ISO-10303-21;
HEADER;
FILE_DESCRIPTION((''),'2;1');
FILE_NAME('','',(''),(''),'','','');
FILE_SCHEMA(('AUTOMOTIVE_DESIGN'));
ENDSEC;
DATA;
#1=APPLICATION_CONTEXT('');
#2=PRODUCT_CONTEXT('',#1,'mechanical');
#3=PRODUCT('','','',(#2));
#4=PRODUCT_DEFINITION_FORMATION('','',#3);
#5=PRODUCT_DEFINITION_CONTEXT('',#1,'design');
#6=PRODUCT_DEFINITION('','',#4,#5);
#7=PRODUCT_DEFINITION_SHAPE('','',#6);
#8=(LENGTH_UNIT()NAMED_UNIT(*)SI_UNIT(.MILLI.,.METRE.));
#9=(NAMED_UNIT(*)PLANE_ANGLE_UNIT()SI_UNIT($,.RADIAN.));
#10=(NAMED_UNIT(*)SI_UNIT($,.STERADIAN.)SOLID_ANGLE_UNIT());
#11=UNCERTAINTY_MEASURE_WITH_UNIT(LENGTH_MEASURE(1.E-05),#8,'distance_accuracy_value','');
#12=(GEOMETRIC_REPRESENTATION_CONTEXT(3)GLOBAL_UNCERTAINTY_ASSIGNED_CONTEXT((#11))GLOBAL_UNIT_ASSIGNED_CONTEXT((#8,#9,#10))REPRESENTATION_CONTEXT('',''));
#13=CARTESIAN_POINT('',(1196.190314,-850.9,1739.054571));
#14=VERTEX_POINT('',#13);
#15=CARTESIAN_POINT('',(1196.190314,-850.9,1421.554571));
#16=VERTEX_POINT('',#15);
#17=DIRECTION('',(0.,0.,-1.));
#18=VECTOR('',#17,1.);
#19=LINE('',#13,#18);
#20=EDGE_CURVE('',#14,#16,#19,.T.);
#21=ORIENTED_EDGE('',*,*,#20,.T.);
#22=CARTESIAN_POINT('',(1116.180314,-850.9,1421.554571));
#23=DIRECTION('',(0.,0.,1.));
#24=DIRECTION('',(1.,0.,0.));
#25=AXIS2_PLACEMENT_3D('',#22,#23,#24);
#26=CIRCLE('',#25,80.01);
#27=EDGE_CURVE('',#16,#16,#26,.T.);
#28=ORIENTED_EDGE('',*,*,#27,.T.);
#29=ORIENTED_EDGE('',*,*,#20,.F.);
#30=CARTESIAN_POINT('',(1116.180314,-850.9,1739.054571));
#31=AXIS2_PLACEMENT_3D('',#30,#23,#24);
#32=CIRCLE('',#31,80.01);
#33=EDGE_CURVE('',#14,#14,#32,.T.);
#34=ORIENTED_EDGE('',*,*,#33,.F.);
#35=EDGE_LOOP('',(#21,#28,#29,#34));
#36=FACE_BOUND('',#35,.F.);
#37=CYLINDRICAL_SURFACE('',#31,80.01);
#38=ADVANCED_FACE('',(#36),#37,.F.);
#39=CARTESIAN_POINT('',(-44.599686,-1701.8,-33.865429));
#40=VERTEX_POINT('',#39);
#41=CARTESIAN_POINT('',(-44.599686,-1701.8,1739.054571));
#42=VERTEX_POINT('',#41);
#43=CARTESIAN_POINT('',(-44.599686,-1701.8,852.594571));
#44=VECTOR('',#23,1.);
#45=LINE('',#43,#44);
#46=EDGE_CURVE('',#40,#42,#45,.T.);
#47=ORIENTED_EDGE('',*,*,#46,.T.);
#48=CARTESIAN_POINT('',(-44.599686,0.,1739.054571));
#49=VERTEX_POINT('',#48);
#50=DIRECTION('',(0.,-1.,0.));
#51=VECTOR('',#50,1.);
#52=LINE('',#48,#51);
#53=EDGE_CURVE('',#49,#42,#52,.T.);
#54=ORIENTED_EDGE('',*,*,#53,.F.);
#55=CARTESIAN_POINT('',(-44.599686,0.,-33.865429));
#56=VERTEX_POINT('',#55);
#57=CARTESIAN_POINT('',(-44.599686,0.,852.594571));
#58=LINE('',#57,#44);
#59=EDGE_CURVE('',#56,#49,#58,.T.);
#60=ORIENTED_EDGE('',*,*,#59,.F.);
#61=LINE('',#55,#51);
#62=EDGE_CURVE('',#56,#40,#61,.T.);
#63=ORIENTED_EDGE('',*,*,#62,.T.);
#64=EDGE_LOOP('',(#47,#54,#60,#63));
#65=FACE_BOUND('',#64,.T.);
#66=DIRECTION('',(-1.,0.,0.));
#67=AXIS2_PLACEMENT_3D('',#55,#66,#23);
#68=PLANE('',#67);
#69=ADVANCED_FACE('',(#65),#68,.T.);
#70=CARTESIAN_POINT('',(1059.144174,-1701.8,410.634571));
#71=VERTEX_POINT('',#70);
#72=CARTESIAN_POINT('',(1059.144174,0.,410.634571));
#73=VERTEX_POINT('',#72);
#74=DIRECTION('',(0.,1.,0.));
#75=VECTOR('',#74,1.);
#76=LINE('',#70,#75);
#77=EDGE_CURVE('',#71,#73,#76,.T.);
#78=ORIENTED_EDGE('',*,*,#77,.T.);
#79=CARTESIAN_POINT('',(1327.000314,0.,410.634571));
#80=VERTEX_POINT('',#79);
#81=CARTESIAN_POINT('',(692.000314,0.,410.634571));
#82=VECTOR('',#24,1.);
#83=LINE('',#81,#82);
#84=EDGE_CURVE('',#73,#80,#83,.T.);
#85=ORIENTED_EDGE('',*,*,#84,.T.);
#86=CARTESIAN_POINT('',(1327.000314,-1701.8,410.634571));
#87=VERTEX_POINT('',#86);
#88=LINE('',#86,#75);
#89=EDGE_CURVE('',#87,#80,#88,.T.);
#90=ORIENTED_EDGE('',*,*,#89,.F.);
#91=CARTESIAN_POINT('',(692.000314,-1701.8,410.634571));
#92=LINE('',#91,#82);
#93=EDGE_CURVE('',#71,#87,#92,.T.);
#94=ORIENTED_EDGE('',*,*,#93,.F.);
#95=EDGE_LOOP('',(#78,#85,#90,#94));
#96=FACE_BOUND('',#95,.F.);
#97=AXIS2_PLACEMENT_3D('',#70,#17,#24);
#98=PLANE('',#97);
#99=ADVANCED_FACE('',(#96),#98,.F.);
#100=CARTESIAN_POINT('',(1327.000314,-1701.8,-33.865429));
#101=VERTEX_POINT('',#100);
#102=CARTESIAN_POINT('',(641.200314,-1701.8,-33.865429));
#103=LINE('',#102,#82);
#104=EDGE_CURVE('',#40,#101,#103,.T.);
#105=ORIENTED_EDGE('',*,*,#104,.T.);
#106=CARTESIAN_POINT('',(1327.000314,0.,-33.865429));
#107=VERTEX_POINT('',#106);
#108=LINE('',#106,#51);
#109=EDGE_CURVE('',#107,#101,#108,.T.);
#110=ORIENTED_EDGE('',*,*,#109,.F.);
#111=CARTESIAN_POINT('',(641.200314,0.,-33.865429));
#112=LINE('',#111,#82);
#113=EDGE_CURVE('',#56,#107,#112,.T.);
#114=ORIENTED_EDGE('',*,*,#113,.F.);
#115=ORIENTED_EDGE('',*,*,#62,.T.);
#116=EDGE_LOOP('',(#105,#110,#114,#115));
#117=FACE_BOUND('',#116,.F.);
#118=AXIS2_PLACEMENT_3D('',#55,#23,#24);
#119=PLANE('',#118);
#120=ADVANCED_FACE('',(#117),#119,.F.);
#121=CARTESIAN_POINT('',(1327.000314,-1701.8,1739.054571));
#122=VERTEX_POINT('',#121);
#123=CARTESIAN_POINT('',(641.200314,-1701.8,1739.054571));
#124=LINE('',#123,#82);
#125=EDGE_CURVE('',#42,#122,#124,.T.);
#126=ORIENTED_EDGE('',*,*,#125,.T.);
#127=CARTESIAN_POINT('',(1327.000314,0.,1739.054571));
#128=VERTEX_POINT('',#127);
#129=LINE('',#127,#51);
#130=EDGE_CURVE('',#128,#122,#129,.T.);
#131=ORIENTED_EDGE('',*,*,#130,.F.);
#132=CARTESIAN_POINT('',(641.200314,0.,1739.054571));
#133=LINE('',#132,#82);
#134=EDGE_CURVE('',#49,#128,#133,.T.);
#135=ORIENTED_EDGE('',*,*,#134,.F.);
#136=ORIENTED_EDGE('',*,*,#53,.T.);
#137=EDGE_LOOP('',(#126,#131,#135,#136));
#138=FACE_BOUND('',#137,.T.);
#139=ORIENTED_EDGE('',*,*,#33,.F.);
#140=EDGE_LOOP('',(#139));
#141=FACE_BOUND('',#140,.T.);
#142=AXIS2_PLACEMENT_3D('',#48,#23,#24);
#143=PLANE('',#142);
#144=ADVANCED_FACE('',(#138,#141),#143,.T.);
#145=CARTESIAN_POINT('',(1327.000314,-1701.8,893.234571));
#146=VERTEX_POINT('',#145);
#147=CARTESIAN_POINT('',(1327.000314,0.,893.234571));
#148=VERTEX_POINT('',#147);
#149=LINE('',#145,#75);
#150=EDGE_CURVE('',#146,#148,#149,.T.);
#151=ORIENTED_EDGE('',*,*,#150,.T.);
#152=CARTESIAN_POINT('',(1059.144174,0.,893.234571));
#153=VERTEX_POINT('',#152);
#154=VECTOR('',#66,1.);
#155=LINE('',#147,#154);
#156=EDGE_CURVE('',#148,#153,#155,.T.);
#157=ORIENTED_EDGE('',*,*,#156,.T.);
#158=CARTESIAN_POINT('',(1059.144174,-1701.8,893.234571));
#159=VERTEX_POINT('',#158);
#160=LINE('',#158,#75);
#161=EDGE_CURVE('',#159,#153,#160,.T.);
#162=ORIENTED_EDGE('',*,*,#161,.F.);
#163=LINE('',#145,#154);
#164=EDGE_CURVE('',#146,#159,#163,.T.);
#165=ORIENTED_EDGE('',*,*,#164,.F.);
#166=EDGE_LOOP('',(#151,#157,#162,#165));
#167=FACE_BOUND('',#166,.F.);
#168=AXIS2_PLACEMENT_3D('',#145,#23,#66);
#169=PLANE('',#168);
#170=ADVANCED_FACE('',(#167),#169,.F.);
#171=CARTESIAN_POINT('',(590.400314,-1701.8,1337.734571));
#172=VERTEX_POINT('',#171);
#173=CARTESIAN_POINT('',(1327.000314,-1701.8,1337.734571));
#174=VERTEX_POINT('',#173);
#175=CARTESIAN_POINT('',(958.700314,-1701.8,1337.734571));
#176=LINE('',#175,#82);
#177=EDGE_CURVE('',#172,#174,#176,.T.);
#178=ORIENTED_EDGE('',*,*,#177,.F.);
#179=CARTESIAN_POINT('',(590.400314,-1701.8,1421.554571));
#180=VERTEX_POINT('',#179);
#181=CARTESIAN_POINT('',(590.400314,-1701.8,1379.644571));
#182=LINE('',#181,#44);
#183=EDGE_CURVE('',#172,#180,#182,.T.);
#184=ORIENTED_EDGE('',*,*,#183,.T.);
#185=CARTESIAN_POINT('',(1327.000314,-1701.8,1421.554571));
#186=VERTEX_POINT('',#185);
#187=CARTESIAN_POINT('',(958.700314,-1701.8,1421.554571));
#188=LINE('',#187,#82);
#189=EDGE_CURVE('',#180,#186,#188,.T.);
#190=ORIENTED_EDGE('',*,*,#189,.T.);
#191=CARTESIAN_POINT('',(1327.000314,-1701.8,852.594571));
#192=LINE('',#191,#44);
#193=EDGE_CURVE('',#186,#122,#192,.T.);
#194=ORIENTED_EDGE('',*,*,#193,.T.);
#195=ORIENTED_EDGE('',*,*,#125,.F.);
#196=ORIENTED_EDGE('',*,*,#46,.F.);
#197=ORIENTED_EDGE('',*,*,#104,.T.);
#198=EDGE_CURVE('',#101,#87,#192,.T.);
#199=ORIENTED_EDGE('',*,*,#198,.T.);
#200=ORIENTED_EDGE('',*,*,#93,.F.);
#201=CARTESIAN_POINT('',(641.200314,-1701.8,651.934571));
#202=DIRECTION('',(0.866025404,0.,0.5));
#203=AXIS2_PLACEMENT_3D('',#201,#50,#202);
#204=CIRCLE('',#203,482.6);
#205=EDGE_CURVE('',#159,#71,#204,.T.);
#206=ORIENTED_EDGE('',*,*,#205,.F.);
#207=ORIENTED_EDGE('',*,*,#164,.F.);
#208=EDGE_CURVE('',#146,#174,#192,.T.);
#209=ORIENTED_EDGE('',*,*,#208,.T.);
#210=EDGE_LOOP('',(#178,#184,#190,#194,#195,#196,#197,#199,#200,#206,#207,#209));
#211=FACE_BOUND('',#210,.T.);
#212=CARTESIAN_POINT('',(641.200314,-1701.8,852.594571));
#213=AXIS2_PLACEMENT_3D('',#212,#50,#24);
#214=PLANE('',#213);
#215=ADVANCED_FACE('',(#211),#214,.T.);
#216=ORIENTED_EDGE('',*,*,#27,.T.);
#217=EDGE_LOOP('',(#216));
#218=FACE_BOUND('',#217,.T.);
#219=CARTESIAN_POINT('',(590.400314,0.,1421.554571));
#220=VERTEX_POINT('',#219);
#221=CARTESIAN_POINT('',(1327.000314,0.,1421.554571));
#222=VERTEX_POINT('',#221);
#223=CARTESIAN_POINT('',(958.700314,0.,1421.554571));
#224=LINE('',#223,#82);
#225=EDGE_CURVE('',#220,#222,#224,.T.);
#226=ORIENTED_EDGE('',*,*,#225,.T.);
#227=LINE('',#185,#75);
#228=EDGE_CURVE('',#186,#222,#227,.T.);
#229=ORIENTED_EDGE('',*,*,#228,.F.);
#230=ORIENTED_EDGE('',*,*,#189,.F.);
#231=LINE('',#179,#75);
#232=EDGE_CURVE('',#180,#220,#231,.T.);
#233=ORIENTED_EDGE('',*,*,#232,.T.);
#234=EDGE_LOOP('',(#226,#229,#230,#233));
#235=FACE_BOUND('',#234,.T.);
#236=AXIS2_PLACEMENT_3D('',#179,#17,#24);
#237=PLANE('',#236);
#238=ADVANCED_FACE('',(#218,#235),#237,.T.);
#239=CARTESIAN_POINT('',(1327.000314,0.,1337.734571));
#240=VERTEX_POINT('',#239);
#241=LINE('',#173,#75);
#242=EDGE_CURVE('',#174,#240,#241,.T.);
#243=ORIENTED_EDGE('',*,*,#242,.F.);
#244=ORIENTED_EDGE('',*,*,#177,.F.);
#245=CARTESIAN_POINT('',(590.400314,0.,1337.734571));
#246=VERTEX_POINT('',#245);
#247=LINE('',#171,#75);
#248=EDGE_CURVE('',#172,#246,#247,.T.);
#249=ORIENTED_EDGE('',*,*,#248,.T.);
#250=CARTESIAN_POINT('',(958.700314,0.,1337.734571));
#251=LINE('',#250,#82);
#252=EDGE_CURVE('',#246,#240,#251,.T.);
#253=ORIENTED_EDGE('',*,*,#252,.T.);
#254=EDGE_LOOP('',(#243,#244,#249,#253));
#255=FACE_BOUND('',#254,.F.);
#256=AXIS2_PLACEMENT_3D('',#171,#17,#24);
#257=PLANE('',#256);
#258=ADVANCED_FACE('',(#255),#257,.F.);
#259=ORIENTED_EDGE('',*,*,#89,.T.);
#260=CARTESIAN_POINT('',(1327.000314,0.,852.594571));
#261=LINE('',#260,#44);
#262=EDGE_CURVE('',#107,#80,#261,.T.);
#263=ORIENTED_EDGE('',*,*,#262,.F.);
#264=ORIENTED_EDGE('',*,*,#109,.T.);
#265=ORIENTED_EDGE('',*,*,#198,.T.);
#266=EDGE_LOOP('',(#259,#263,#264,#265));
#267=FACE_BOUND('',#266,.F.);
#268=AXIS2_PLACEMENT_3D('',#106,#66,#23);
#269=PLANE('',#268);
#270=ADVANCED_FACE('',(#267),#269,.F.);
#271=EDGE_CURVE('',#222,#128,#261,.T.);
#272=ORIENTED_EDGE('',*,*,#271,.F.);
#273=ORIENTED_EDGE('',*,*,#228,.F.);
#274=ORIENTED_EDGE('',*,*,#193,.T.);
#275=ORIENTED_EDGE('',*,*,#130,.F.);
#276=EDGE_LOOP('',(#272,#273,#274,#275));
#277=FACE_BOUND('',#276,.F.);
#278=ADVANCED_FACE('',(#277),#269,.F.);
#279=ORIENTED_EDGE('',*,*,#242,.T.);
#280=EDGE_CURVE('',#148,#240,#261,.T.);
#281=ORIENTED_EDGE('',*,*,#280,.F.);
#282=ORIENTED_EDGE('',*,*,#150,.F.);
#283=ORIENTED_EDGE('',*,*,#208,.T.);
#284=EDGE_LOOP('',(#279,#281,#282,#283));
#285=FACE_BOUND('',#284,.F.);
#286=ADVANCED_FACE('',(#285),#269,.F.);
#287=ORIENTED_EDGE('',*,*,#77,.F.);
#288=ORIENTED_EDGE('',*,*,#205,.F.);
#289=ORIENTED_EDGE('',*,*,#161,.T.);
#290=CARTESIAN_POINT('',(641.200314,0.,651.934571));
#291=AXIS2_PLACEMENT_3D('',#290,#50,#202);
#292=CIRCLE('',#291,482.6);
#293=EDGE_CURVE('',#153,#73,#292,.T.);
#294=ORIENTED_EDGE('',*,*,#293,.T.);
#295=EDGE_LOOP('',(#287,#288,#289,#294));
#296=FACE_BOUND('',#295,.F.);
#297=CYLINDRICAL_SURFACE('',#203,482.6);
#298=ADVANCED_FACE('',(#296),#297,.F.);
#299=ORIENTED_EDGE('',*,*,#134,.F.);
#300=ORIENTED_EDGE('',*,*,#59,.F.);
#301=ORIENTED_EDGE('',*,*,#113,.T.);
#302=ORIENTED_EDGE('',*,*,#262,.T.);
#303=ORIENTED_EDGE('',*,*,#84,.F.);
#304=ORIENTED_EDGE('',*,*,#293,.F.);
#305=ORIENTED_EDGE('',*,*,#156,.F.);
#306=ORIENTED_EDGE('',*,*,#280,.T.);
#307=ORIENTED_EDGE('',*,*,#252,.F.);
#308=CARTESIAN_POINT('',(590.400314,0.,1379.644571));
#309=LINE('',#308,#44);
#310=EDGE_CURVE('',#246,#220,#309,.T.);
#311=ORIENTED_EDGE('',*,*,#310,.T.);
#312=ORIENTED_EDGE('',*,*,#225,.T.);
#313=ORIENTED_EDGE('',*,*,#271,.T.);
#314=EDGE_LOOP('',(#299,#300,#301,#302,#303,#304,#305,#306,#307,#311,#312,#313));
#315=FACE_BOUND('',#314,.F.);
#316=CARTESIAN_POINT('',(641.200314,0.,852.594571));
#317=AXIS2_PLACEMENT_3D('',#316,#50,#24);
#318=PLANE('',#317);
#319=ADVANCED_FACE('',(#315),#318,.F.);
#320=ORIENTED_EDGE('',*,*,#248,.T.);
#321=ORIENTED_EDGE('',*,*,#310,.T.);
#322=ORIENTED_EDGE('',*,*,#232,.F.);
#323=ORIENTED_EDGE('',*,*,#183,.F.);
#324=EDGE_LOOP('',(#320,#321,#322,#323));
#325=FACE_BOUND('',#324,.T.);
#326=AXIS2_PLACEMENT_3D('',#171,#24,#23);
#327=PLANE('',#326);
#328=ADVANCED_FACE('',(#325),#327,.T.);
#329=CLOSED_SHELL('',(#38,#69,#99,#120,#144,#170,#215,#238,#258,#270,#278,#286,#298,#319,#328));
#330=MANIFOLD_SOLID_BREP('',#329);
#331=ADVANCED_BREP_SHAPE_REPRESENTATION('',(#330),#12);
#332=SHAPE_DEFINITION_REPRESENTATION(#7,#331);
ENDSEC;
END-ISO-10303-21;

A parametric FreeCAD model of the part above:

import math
import FreeCAD as App
import Part
import Sketcher
from FreeCAD import Vector
Q = App.Units.Quantity


def add_polygon(sketch, points):
    """Adds a closed chain of lines whose ends are joined by coincident constraints."""
    first, n = sketch.GeometryCount, len(points)
    for a, b in zip(points, points[1:] + points[:1]):
        sketch.addGeometry(Part.LineSegment(App.Vector(*a, 0), App.Vector(*b, 0)), False)
    for i in range(n):
        sketch.addConstraint(Sketcher.Constraint("Coincident", first + i, 2, first + (i + 1) % n, 1))

doc = App.newDocument("Part")
body = doc.addObject("PartDesign::Body", "Body")

sketch1 = doc.addObject("Sketcher::SketchObject", "Sketch")
body.addObject(sketch1)
sketch1.AttachmentSupport = (doc.XZ_Plane, [""])
sketch1.MapMode = "FlatFace"
add_polygon(sketch1, [(-45, 1739), (-45, -34), (1327, -34), (1327, 1739)])
sketch1.addConstraint(Sketcher.Constraint("Vertical", 0))
sketch1.addConstraint(Sketcher.Constraint("Horizontal", 1))
sketch1.addConstraint(Sketcher.Constraint("Vertical", 2))
sketch1.addConstraint(Sketcher.Constraint("Horizontal", 3))
sketch1.addConstraint(Sketcher.Constraint("DistanceX", 1, 1, 1, 2, Q("54 in")))
sketch1.addConstraint(Sketcher.Constraint("DistanceY", 0, 2, 0, 1, Q("69.8 in")))
sketch1.addConstraint(Sketcher.Constraint("DistanceY", 0, 2, -1, 1, Q("33.865429 mm")))
sketch1.addConstraint(Sketcher.Constraint("DistanceX", 0, 2, -1, 1, Q("44.599686 mm")))
pad1 = doc.addObject("PartDesign::Pad", "Pad")
body.addObject(pad1)
pad1.Profile = sketch1
pad1.Length = Q("67 in")

sketch2 = doc.addObject("Sketcher::SketchObject", "Sketch001")
body.addObject(sketch2)
sketch2.AttachmentSupport = (doc.XZ_Plane, [""])
sketch2.MapMode = "FlatFace"
sketch2.AttachmentOffset = App.Placement(Vector(0, 0, 67 * 25.4), App.Rotation())
add_polygon(sketch2, [(590, 1422), (590, 1338), (1327, 1338), (1327, 1422)])
sketch2.addConstraint(Sketcher.Constraint("Vertical", 0))
sketch2.addConstraint(Sketcher.Constraint("Horizontal", 1))
sketch2.addConstraint(Sketcher.Constraint("Vertical", 2))
sketch2.addConstraint(Sketcher.Constraint("Horizontal", 3))
sketch2.addConstraint(Sketcher.Constraint("DistanceX", 1, 1, 1, 2, Q("29 in")))
sketch2.addConstraint(Sketcher.Constraint("DistanceY", 0, 2, 0, 1, Q("3.3 in")))
sketch2.addConstraint(Sketcher.Constraint("DistanceY", -1, 1, 0, 2, Q("1337.734571 mm")))
sketch2.addConstraint(Sketcher.Constraint("DistanceX", -1, 1, 0, 2, Q("590.400314 mm")))
pocket1 = doc.addObject("PartDesign::Pocket", "Pocket")
body.addObject(pocket1)
pocket1.Profile = sketch2
pocket1.Length = Q("67 in")

sketch3 = doc.addObject("Sketcher::SketchObject", "Sketch002")
body.addObject(sketch3)
sketch3.AttachmentSupport = (doc.XZ_Plane, [""])
sketch3.MapMode = "FlatFace"
sketch3.AttachmentOffset = App.Placement(Vector(0, 0, 67 * 25.4), App.Rotation())
sketch3.addGeometry(Part.LineSegment(Vector(1059, 411, 0), Vector(1327, 411, 0)), False)
sketch3.addGeometry(Part.LineSegment(Vector(1327, 411, 0), Vector(1327, 893, 0)), False)
sketch3.addGeometry(Part.LineSegment(Vector(1327, 893, 0), Vector(1059, 893, 0)), False)
sketch3.addGeometry(Part.ArcOfCircle(Part.Circle(Vector(641, 652, 0), Vector(0, 0, 1), 483), math.radians(30), math.radians(330)), False)
sketch3.addConstraint(Sketcher.Constraint("Coincident", 0, 2, 1, 1))
sketch3.addConstraint(Sketcher.Constraint("Coincident", 1, 2, 2, 1))
sketch3.addConstraint(Sketcher.Constraint("Coincident", 2, 2, 3, 1))
sketch3.addConstraint(Sketcher.Constraint("Coincident", 3, 2, 0, 1))
sketch3.addConstraint(Sketcher.Constraint("Horizontal", 0))
sketch3.addConstraint(Sketcher.Constraint("Vertical", 1))
sketch3.addConstraint(Sketcher.Constraint("Horizontal", 2))
sketch3.addConstraint(Sketcher.Constraint("Vertical", 2, 2, 3, 2))
sketch3.addConstraint(Sketcher.Constraint("Radius", 3, Q("19 in")))
sketch3.addConstraint(Sketcher.Constraint("DistanceY", 1, 1, 1, 2, Q("19 in")))
sketch3.addConstraint(Sketcher.Constraint("DistanceX", 3, 3, 0, 2, Q("27 in")))
sketch3.addConstraint(Sketcher.Constraint("DistanceY", -1, 1, 3, 3, Q("651.934571 mm")))
sketch3.addConstraint(Sketcher.Constraint("DistanceX", -1, 1, 3, 3, Q("641.200314 mm")))
pocket2 = doc.addObject("PartDesign::Pocket", "Pocket001")
body.addObject(pocket2)
pocket2.Profile = sketch3
pocket2.Length = Q("67 in")

sketch4 = doc.addObject("Sketcher::SketchObject", "Sketch003")
body.addObject(sketch4)
sketch4.AttachmentSupport = (doc.XY_Plane, [""])
sketch4.MapMode = "FlatFace"
sketch4.AttachmentOffset = App.Placement(Vector(0, 0, 1739.054571), App.Rotation())
sketch4.addGeometry(Part.Circle(Vector(1116, -851, 0), Vector(0, 0, 1), 80), False)
sketch4.addConstraint(Sketcher.Constraint("Diameter", 0, Q("6.3 in")))
sketch4.addConstraint(Sketcher.Constraint("DistanceY", 0, 3, -1, 1, Q("33.5 in")))
sketch4.addConstraint(Sketcher.Constraint("DistanceX", -1, 1, 0, 3, Q("1116.180314 mm")))
pocket3 = doc.addObject("PartDesign::Pocket", "Pocket002")
body.addObject(pocket3)
pocket3.Profile = sketch4
pocket3.Length = Q("12.5 in")

doc.recompute()
